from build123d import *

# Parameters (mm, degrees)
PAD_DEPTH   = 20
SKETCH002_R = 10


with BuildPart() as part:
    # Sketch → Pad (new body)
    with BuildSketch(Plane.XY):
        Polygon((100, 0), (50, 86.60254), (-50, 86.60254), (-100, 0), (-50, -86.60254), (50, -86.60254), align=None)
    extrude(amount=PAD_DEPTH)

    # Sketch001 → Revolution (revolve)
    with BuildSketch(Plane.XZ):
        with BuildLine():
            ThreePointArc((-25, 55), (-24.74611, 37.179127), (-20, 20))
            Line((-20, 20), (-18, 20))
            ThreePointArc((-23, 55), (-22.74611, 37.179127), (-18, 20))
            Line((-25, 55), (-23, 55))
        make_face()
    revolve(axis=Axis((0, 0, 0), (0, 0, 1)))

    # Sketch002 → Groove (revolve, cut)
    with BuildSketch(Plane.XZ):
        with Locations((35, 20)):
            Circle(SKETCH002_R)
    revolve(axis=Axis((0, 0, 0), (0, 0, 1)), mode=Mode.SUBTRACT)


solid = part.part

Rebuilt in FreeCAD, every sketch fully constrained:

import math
import FreeCAD as App
import Part
import Sketcher
from FreeCAD import Vector
Q = App.Units.Quantity


def add_polygon(sketch, points):
    """Adds a closed chain of lines whose ends are joined by coincident constraints."""
    first, n = sketch.GeometryCount, len(points)
    for a, b in zip(points, points[1:] + points[:1]):
        sketch.addGeometry(Part.LineSegment(App.Vector(*a, 0), App.Vector(*b, 0)), False)
    for i in range(n):
        sketch.addConstraint(Sketcher.Constraint("Coincident", first + i, 2, first + (i + 1) % n, 1))

doc = App.newDocument("Part")
body = doc.addObject("PartDesign::Body", "Body")

# Sketch on XY plane
sketch1 = body.newObject("Sketcher::SketchObject", "Sketch")
sketch1.AttachmentSupport = (doc.getObject("XY_Plane"), [""])
sketch1.MapMode = "FlatFace"
add_polygon(sketch1, [(100, 0), (50, 87), (-50, 87), (-100, 0), (-50, -87), (50, -87)])  # lines 0-5
sketch1.addConstraint(Sketcher.Constraint("Horizontal", 1))
sketch1.addConstraint(Sketcher.Constraint("Horizontal", 4))
sketch1.addConstraint(Sketcher.Constraint("Symmetric", 0, 2, 3, 2, -1, 1))
sketch1.addConstraint(Sketcher.Constraint("Symmetric", 2, 2, 5, 2, -1, 1))
sketch1.addConstraint(Sketcher.Constraint("PointOnObject", 2, 2, -1))
sketch1.addConstraint(Sketcher.Constraint("Parallel", 2, 5))
sketch1.addConstraint(Sketcher.Constraint("Vertical", 1, 2, 3, 2))
sketch1.addConstraint(Sketcher.Constraint("DistanceX", 1, 2, 1, 1, Q("100 mm")))
sketch1.addConstraint(Sketcher.Constraint("Angle", 0, Q("120 deg")))
sketch1.addConstraint(Sketcher.Constraint("Distance", 0, Q("100 mm")))
pad1 = body.newObject("PartDesign::Pad", "Pad")
pad1.Profile = sketch1
pad1.Length = 20

# Sketch on XZ plane
sketch2 = body.newObject("Sketcher::SketchObject", "Sketch001")
sketch2.AttachmentSupport = (doc.getObject("XZ_Plane"), [""])
sketch2.MapMode = "FlatFace"
sketch2.addGeometry(Part.ArcOfCircle(Part.Circle(Vector(44.6, 47.1, 0), Vector(0, 0, 1), 70), math.radians(174), math.radians(203)), False)
sketch2.addGeometry(Part.LineSegment(Vector(-20, 20, 0), Vector(-18, 20, 0)), False)
sketch2.addGeometry(Part.ArcOfCircle(Part.Circle(Vector(46.6, 47.1, 0), Vector(0, 0, 1), 70), math.radians(174), math.radians(203)), False)
sketch2.addGeometry(Part.LineSegment(Vector(-23, 55, 0), Vector(-25, 55, 0)), False)
sketch2.addConstraint(Sketcher.Constraint("Coincident", 0, 2, 1, 1))
sketch2.addConstraint(Sketcher.Constraint("Coincident", 1, 2, 2, 2))
sketch2.addConstraint(Sketcher.Constraint("Coincident", 2, 1, 3, 1))
sketch2.addConstraint(Sketcher.Constraint("Coincident", 3, 2, 0, 1))
sketch2.addConstraint(Sketcher.Constraint("Horizontal", 1))
sketch2.addConstraint(Sketcher.Constraint("Horizontal", 3))
sketch2.addConstraint(Sketcher.Constraint("Equal", 0, 2))
sketch2.addConstraint(Sketcher.Constraint("Horizontal", 0, 3, 2, 3))
sketch2.addConstraint(Sketcher.Constraint("DistanceX", 1, 1, 1, 2, Q("2 mm")))
sketch2.addConstraint(Sketcher.Constraint("DistanceX", 0, 2, -1, 1, Q("20 mm")))
sketch2.addConstraint(Sketcher.Constraint("DistanceY", -1, 1, 0, 2, Q("20 mm")))
sketch2.addConstraint(Sketcher.Constraint("DistanceX", 2, 1, -1, 1, Q("23 mm")))
sketch2.addConstraint(Sketcher.Constraint("DistanceY", -1, 1, 2, 1, Q("55 mm")))
sketch2.addConstraint(Sketcher.Constraint("Radius", 0, Q("70.00001 mm")))
revolution = body.newObject("PartDesign::Revolution", "Revolution")
revolution.Profile = sketch2
revolution.ReferenceAxis = (sketch2, ["V_Axis"])
revolution.Angle = 360

# Sketch on XZ plane
sketch3 = body.newObject("Sketcher::SketchObject", "Sketch002")
sketch3.AttachmentSupport = (doc.getObject("XZ_Plane"), [""])
sketch3.MapMode = "FlatFace"
sketch3.addGeometry(Part.Circle(Vector(35, 20, 0), Vector(0, 0, 1), 10), False)
sketch3.addConstraint(Sketcher.Constraint("Diameter", 0, Q("20 mm")))
sketch3.addConstraint(Sketcher.Constraint("DistanceX", -1, 1, 0, 3, Q("35 mm")))
sketch3.addConstraint(Sketcher.Constraint("DistanceY", -1, 1, 0, 3, Q("20 mm")))
groove = body.newObject("PartDesign::Groove", "Groove")
groove.Profile = sketch3
groove.ReferenceAxis = (sketch3, ["V_Axis"])
groove.Angle = 360

doc.recompute()
